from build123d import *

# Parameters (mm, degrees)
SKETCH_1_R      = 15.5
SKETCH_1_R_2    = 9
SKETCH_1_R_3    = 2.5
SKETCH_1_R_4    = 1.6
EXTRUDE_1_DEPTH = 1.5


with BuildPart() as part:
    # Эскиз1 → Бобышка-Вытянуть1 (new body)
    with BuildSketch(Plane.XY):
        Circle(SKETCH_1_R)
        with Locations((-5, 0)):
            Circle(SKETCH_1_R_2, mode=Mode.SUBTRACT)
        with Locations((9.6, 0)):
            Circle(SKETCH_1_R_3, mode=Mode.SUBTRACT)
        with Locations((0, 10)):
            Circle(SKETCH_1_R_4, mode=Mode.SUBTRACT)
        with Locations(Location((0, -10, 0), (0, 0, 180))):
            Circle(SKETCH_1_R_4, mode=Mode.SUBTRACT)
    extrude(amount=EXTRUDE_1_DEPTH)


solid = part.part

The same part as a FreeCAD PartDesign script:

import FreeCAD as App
import Part
import Sketcher

V = App.Vector

doc = App.newDocument("Part")
params = doc.addObject("Spreadsheet::Sheet", "Params")
for row, (alias, value) in enumerate([
    ("sketch1_diameter", "31 mm"),
    ("sketch1_diameter2", "5 mm"),
    ("sketch1_diameter3", "18 mm"),
    ("sketch1_diameter4", "3.2 mm"),
    ("pad1_length", "1.5 mm"),
], start=1):
    params.set(f"A{row}", alias)
    params.set(f"B{row}", "=" + value)
    params.setAlias(f"B{row}", alias)

body = doc.addObject("PartDesign::Body", "Body")

# Sketch on XY plane
sketch1 = body.newObject("Sketcher::SketchObject", "Sketch")
sketch1.AttachmentSupport = (doc.getObject("XY_Plane"), [""])
sketch1.MapMode = "FlatFace"
sketch1.addGeometry(Part.Circle(V(0, 0, 0), V(0, 0, 1), 15.5), False)
sketch1.addGeometry(Part.Circle(V(0, -10, 0), V(0, 0, 1), 1.6), False)
sketch1.addGeometry(Part.Circle(V(9.6, 0, 0), V(0, 0, 1), 2.5), False)
sketch1.addGeometry(Part.Circle(V(-5, 0, 0), V(0, 0, 1), 9), False)
sketch1.addGeometry(Part.Circle(V(0, 10, 0), V(0, 0, 1), 1.6), False)
sketch1.addConstraint(Sketcher.Constraint("Coincident", 0, 3, -1, 1))
sketch1.addConstraint(Sketcher.Constraint("Equal", 1, 4))
sketch1.addConstraint(Sketcher.Constraint("Symmetric", 1, 3, 4, 3, -1, 1))
sketch1.addConstraint(Sketcher.Constraint("PointOnObject", 1, 3, -2))
sketch1.addConstraint(Sketcher.Constraint("PointOnObject", 2, 3, -1))
sketch1.addConstraint(Sketcher.Constraint("PointOnObject", 3, 3, -1))
sketch1.addConstraint(Sketcher.Constraint("Diameter", 0, 31.0))
sketch1.addConstraint(Sketcher.Constraint("Diameter", 2, 5.0))
sketch1.addConstraint(Sketcher.Constraint("Diameter", 3, 18.0))
sketch1.addConstraint(Sketcher.Constraint("Diameter", 1, 3.2))
sketch1.addConstraint(Sketcher.Constraint("DistanceY", 1, 3, -1, 1, 10.0))
sketch1.addConstraint(Sketcher.Constraint("DistanceX", 3, 3, -1, 1, 5.0))
sketch1.addConstraint(Sketcher.Constraint("DistanceX", -1, 1, 2, 3, 9.6))
sketch1.setExpression("Constraints[6]", "Params.sketch1_diameter")
sketch1.setExpression("Constraints[7]", "Params.sketch1_diameter2")
sketch1.setExpression("Constraints[8]", "Params.sketch1_diameter3")
sketch1.setExpression("Constraints[9]", "Params.sketch1_diameter4")
pad1 = body.newObject("PartDesign::Pad", "Pad")
pad1.Profile = sketch1
pad1.setExpression("Length", "Params.pad1_length")

doc.recompute()
